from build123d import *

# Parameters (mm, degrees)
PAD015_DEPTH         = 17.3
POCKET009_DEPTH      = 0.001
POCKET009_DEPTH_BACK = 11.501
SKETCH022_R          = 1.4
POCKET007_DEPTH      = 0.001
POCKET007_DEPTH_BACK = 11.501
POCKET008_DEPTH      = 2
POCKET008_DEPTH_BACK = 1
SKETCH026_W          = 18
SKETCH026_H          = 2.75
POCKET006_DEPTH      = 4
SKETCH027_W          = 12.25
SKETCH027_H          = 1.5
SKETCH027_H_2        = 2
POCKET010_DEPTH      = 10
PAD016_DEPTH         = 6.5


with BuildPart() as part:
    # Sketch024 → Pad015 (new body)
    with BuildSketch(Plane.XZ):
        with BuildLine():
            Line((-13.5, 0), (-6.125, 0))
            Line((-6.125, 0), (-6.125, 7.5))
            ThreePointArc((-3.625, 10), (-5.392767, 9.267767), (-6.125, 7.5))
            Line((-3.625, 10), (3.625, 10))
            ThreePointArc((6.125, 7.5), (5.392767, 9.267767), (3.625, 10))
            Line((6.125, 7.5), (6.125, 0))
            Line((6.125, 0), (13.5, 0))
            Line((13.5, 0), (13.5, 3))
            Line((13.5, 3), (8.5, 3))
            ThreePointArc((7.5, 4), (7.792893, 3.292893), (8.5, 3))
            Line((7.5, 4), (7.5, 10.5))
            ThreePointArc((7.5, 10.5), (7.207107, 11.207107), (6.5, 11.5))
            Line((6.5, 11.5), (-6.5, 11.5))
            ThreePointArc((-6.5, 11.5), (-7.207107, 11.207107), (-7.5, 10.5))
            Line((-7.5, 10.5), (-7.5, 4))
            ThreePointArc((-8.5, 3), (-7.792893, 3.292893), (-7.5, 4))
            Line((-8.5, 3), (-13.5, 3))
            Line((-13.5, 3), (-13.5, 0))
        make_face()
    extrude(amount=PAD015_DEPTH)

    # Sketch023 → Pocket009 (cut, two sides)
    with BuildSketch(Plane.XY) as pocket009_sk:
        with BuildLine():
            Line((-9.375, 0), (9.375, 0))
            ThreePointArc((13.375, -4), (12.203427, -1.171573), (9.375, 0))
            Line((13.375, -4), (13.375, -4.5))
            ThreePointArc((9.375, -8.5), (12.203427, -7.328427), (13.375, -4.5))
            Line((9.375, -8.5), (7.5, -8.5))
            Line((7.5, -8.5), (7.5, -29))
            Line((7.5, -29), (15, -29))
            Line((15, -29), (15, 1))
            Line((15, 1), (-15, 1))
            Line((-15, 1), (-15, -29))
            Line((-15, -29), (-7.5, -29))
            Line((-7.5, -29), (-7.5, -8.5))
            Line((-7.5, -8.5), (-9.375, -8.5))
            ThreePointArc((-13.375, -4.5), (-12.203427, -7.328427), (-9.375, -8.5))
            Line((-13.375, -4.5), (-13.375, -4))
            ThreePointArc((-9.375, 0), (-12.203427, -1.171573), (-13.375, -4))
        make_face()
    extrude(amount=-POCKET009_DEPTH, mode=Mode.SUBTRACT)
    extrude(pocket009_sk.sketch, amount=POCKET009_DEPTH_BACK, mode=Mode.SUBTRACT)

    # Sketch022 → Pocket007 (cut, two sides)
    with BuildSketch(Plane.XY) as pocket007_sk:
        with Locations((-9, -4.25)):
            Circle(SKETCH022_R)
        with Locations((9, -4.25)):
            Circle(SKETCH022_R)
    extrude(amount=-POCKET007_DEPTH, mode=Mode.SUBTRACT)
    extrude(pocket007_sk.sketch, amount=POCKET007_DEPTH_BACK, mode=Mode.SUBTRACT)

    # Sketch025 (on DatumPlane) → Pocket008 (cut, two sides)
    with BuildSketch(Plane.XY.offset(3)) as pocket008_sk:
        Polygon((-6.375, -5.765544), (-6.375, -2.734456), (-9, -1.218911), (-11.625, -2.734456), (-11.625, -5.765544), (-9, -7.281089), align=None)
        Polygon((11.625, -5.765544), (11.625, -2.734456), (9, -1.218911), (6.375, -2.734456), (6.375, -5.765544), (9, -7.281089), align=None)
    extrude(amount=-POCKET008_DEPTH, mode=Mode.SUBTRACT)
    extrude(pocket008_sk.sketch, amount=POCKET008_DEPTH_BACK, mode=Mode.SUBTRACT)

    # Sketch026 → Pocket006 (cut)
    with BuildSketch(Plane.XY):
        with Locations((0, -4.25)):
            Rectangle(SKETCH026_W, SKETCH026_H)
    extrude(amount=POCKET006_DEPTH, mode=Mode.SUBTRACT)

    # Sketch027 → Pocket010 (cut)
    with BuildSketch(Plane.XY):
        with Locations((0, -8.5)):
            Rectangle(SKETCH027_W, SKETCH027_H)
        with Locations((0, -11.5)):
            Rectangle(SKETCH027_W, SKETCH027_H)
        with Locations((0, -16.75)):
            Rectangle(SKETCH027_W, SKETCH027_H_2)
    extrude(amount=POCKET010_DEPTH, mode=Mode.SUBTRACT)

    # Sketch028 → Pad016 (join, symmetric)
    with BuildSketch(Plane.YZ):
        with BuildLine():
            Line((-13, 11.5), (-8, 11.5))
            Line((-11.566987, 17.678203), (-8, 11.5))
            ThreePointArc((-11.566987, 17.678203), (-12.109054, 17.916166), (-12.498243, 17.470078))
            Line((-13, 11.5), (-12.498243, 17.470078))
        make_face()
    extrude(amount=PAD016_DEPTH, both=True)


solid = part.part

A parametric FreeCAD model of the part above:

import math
import FreeCAD as App
import Part
import Sketcher

V = App.Vector
Q = App.Units.Quantity


def add_polygon(sketch, points):
    """Adds a closed chain of lines whose ends are joined by coincident constraints."""
    first, n = sketch.GeometryCount, len(points)
    for a, b in zip(points, points[1:] + points[:1]):
        sketch.addGeometry(Part.LineSegment(App.Vector(*a, 0), App.Vector(*b, 0)), False)
    for i in range(n):
        sketch.addConstraint(Sketcher.Constraint("Coincident", first + i, 2, first + (i + 1) % n, 1))

doc = App.newDocument("Part")
params = doc.addObject("Spreadsheet::Sheet", "Params")
for row, (alias, value) in enumerate([
    ("sketch1_radius", "0.999999 mm"),
    ("sketch1_radius2", "2.5 mm"),
    ("sketch1_width", "5 mm"),
    ("sketch1_width2", "13 mm"),
    ("sketch1_height", "3 mm"),
    ("pad1_length", "17.3 mm"),
    ("sketch2_radius", "4 mm"),
    ("sketch2_width", "30 mm"),
    ("sketch2_width2", "7.5 mm"),
    ("sketch2_height", "0.5 mm"),
    ("sketch2_height2", "20.5 mm"),
    ("sketch3_diameter", "2.8 mm"),
    ("pocket3_length", "2 mm"),
    ("pocket3_length2", "1 mm"),
    ("sketch5_width", "18 mm"),
    ("sketch5_height", "2.75 mm"),
    ("pocket4_length", "4 mm"),
    ("sketch6_height", "2 mm"),
    ("sketch6_height2", "1.5 mm"),
    ("sketch6_width", "12.25 mm"),
    ("pocket5_length", "10 mm"),
    ("sketch7_radius", "0.5 mm"),
    ("sketch7_width", "5 mm"),
    ("pad2_length", "13 mm"),
], start=1):
    params.set(f"A{row}", alias)
    params.set(f"B{row}", "=" + value)
    params.setAlias(f"B{row}", alias)

body = doc.addObject("PartDesign::Body", "Body")

# Sketch on XZ plane
sketch1 = doc.addObject("Sketcher::SketchObject", "Sketch")
body.addObject(sketch1)
sketch1.AttachmentSupport = (doc.XZ_Plane, [""])
sketch1.MapMode = "FlatFace"
sketch1.addGeometry([
    Part.LineSegment(V(-13.5, 0, 0), V(-6.125, 0, 0)),  # 0
    Part.LineSegment(V(-6.125, 0, 0), V(-6.125, 7.5, 0)),  # 1
    Part.ArcOfCircle(Part.Circle(V(-3.625, 7.5, 0), V(0, 0, 1), 2.5), math.radians(89.999996), math.radians(180.000004)),  # 2
    Part.LineSegment(V(-3.625, 10, 0), V(3.625, 10, 0)),  # 3
    Part.ArcOfCircle(Part.Circle(V(3.625, 7.5, 0), V(0, 0, 1), 2.5), math.radians(-0.000004), math.radians(90.000004)),  # 4
    Part.LineSegment(V(6.125, 7.5, 0), V(6.125, 0, 0)),  # 5
    Part.LineSegment(V(6.125, 0, 0), V(13.5, 0, 0)),  # 6
    Part.LineSegment(V(13.5, 0, 0), V(13.5, 3, 0)),  # 7
    Part.LineSegment(V(13.5, 3, 0), V(8.5, 3, 0)),  # 8
    Part.ArcOfCircle(Part.Circle(V(8.499999, 3.999999, 0), V(0, 0, 1), 0.999999), math.radians(179.999957), math.radians(270.000043)),  # 9
    Part.LineSegment(V(7.5, 4, 0), V(7.5, 10.5, 0)),  # 10
    Part.ArcOfCircle(Part.Circle(V(6.500001, 10.500001, 0), V(0, 0, 1), 0.999999), math.radians(-0.000043), math.radians(90.000043)),  # 11
    Part.LineSegment(V(6.5, 11.5, 0), V(-6.5, 11.5, 0)),  # 12
    Part.ArcOfCircle(Part.Circle(V(-6.500001, 10.500001, 0), V(0, 0, 1), 0.999999), math.radians(89.999957), math.radians(180.000043)),  # 13
    Part.LineSegment(V(-7.5, 10.5, 0), V(-7.5, 4, 0)),  # 14
    Part.ArcOfCircle(Part.Circle(V(-8.499999, 3.999999, 0), V(0, 0, 1), 0.999999), math.radians(-90.000043), math.radians(0.000043)),  # 15
    Part.LineSegment(V(-8.5, 3, 0), V(-13.5, 3, 0)),  # 16
    Part.LineSegment(V(-13.5, 3, 0), V(-13.5, 0, 0)),  # 17
], False)
sketch1.addConstraint([
    Sketcher.Constraint("Coincident", 0, 2, 1, 1),
    Sketcher.Constraint("Tangent", 1, 2, 2, 2),
    Sketcher.Constraint("Tangent", 2, 1, 3, 1),
    Sketcher.Constraint("Tangent", 3, 2, 4, 2),
    Sketcher.Constraint("Tangent", 4, 1, 5, 1),
    Sketcher.Constraint("Coincident", 5, 2, 6, 1),
    Sketcher.Constraint("Coincident", 6, 2, 7, 1),
    Sketcher.Constraint("Coincident", 7, 2, 8, 1),
    Sketcher.Constraint("Tangent", 8, 2, 9, 2),
    Sketcher.Constraint("Tangent", 9, 1, 10, 1),
    Sketcher.Constraint("Tangent", 10, 2, 11, 1),
    Sketcher.Constraint("Tangent", 11, 2, 12, 1),
    Sketcher.Constraint("Tangent", 12, 2, 13, 1),
    Sketcher.Constraint("Tangent", 13, 2, 14, 1),
    Sketcher.Constraint("Tangent", 14, 2, 15, 2),
    Sketcher.Constraint("Tangent", 15, 1, 16, 1),
    Sketcher.Constraint("Coincident", 16, 2, 17, 1),
    Sketcher.Constraint("Coincident", 17, 2, 0, 1),
    Sketcher.Constraint("Horizontal", 0),
    Sketcher.Constraint("Vertical", 1),
    Sketcher.Constraint("Horizontal", 3),
    Sketcher.Constraint("Vertical", 5),
    Sketcher.Constraint("Horizontal", 6),
    Sketcher.Constraint("Vertical", 7),
    Sketcher.Constraint("Horizontal", 8),
    Sketcher.Constraint("Vertical", 10),
    Sketcher.Constraint("Horizontal", 12),
    Sketcher.Constraint("Vertical", 14),
    Sketcher.Constraint("Horizontal", 16),
    Sketcher.Constraint("Vertical", 17),
    Sketcher.Constraint("Equal", 2, 4),
    Sketcher.Constraint("Equal", 9, 11),
    Sketcher.Constraint("Equal", 11, 13),
    Sketcher.Constraint("Equal", 13, 15),
    Sketcher.Constraint("Symmetric", 0, 2, 5, 2, -1, 1),
    Sketcher.Constraint("Symmetric", 9, 3, 15, 3, -2),
    Sketcher.Constraint("Symmetric", 6, 2, 17, 2, -2),
    Sketcher.Constraint("Radius", 9, Q("0.999999 mm")),
    Sketcher.Constraint("Radius", 2, Q("2.5 mm")),
    Sketcher.Constraint("DistanceX", 8, 2, 8, 1, Q("5 mm")),
    Sketcher.Constraint("DistanceX", 12, 2, 12, 1, Q("13 mm")),
    Sketcher.Constraint("DistanceY", 7, 1, 7, 2, Q("3 mm")),
    Sketcher.Constraint("DistanceY", 1, 1, 1, 2, Q("7.5 mm")),
    Sketcher.Constraint("DistanceY", 10, 1, 10, 2, Q("6.5 mm")),
    Sketcher.Constraint("DistanceX", 3, 1, 3, 2, Q("7.25 mm")),
])
sketch1.setExpression("Constraints[37]", "Params.sketch1_radius")
sketch1.setExpression("Constraints[38]", "Params.sketch1_radius2")
sketch1.setExpression("Constraints[39]", "Params.sketch1_width")
sketch1.setExpression("Constraints[40]", "Params.sketch1_width2")
sketch1.setExpression("Constraints[41]", "Params.sketch1_height")
pad1 = doc.addObject("PartDesign::Pad", "Pad")
body.addObject(pad1)
pad1.Profile = sketch1
pad1.setExpression("Length", "Params.pad1_length")

# Sketch on XY plane
sketch2 = doc.addObject("Sketcher::SketchObject", "Sketch001")
body.addObject(sketch2)
sketch2.AttachmentSupport = (doc.XY_Plane, [""])
sketch2.MapMode = "FlatFace"
sketch2.addGeometry([
    Part.LineSegment(V(-9.375, 0, 0), V(9.375, 0, 0)),  # 0
    Part.ArcOfCircle(Part.Circle(V(9.375, -4, 0), V(0, 0, 1), 4), math.radians(0.000006), math.radians(89.999994)),  # 1
    Part.LineSegment(V(13.375, -4, 0), V(13.375, -4.5, 0)),  # 2
    Part.ArcOfCircle(Part.Circle(V(9.375, -4.5, 0), V(0, 0, 1), 4), math.radians(-89.999994), math.radians(-0.000006)),  # 3
    Part.LineSegment(V(9.375, -8.5, 0), V(7.5, -8.5, 0)),  # 4
    Part.LineSegment(V(7.5, -8.5, 0), V(7.5, -29, 0)),  # 5
    Part.LineSegment(V(7.5, -29, 0), V(15, -29, 0)),  # 6
    Part.LineSegment(V(15, -29, 0), V(15, 1, 0)),  # 7
    Part.LineSegment(V(15, 1, 0), V(-15, 1, 0)),  # 8
    Part.LineSegment(V(-15, 1, 0), V(-15, -29, 0)),  # 9
    Part.LineSegment(V(-15, -29, 0), V(-7.5, -29, 0)),  # 10
    Part.LineSegment(V(-7.5, -29, 0), V(-7.5, -8.5, 0)),  # 11
    Part.LineSegment(V(-7.5, -8.5, 0), V(-9.375, -8.5, 0)),  # 12
    Part.ArcOfCircle(Part.Circle(V(-9.375, -4.5, 0), V(0, 0, 1), 4), math.radians(-179.999994), math.radians(-90.000006)),  # 13
    Part.LineSegment(V(-13.375, -4.5, 0), V(-13.375, -4, 0)),  # 14
    Part.ArcOfCircle(Part.Circle(V(-9.375, -4, 0), V(0, 0, 1), 4), math.radians(90.000006), math.radians(179.999994)),  # 15
], False)
sketch2.addConstraint([
    Sketcher.Constraint("Tangent", 0, 2, 1, 2),
    Sketcher.Constraint("Tangent", 1, 1, 2, 1),
    Sketcher.Constraint("Tangent", 2, 2, 3, 2),
    Sketcher.Constraint("Tangent", 3, 1, 4, 1),
    Sketcher.Constraint("Coincident", 4, 2, 5, 1),
    Sketcher.Constraint("Coincident", 5, 2, 6, 1),
    Sketcher.Constraint("Coincident", 6, 2, 7, 1),
    Sketcher.Constraint("Coincident", 7, 2, 8, 1),
    Sketcher.Constraint("Coincident", 8, 2, 9, 1),
    Sketcher.Constraint("Coincident", 9, 2, 10, 1),
    Sketcher.Constraint("Coincident", 10, 2, 11, 1),
    Sketcher.Constraint("Coincident", 11, 2, 12, 1),
    Sketcher.Constraint("Tangent", 12, 2, 13, 2),
    Sketcher.Constraint("Tangent", 13, 1, 14, 1),
    Sketcher.Constraint("Tangent", 14, 2, 15, 2),
    Sketcher.Constraint("Tangent", 15, 1, 0, 1),
    Sketcher.Constraint("Horizontal", 0),
    Sketcher.Constraint("Vertical", 2),
    Sketcher.Constraint("Horizontal", 4),
    Sketcher.Constraint("Vertical", 5),
    Sketcher.Constraint("Horizontal", 6),
    Sketcher.Constraint("Vertical", 7),
    Sketcher.Constraint("Horizontal", 8),
    Sketcher.Constraint("Vertical", 9),
    Sketcher.Constraint("Horizontal", 10),
    Sketcher.Constraint("Vertical", 11),
    Sketcher.Constraint("Horizontal", 12),
    Sketcher.Constraint("Vertical", 14),
    Sketcher.Constraint("Equal", 1, 3),
    Sketcher.Constraint("Equal", 3, 13),
    Sketcher.Constraint("Equal", 13, 15),
    Sketcher.Constraint("Symmetric", 0, 2, 15, 1, -1, 1),
    Sketcher.Constraint("Symmetric", 6, 2, 9, 2, -2),
    Sketcher.Constraint("Symmetric", 4, 2, 11, 2, -2),
    Sketcher.Constraint("Equal", 8, 7),
    Sketcher.Constraint("Radius", 1, Q("4 mm")),
    Sketcher.Constraint("DistanceX", 8, 2, 8, 1, Q("30 mm")),
    Sketcher.Constraint("DistanceX", 6, 1, 6, 2, Q("7.5 mm")),
    Sketcher.Constraint("DistanceY", 2, 2, 2, 1, Q("0.5 mm")),
    Sketcher.Constraint("DistanceY", 5, 2, 5, 1, Q("20.5 mm")),
    Sketcher.Constraint("DistanceX", 0, 1, 0, 2, Q("18.75 mm")),
])
sketch2.setExpression("Constraints[35]", "Params.sketch2_radius")
sketch2.setExpression("Constraints[36]", "Params.sketch2_width")
sketch2.setExpression("Constraints[37]", "Params.sketch2_width2")
sketch2.setExpression("Constraints[38]", "Params.sketch2_height")
sketch2.setExpression("Constraints[39]", "Params.sketch2_height2")
pocket1 = doc.addObject("PartDesign::Pocket", "Pocket")
body.addObject(pocket1)
pocket1.Profile = sketch2
pocket1.Type = "ThroughAll"
pocket1.Midplane = True

# Sketch on XY plane
sketch3 = doc.addObject("Sketcher::SketchObject", "Sketch002")
body.addObject(sketch3)
sketch3.AttachmentSupport = (doc.XY_Plane, [""])
sketch3.MapMode = "FlatFace"
sketch3.addGeometry([
    Part.Circle(V(-9, -4.25, 0), V(0, 0, 1), 1.4),
    Part.Circle(V(9, -4.25, 0), V(0, 0, 1), 1.4),
], False)
sketch3.addConstraint([
    Sketcher.Constraint("Equal", 0, 1),
    Sketcher.Constraint("Symmetric", 0, 3, 1, 3, -2),
    Sketcher.Constraint("Diameter", 0, Q("2.8 mm")),
    Sketcher.Constraint("DistanceX", 0, 3, -1, 1, Q("9 mm")),
    Sketcher.Constraint("DistanceY", 0, 3, -1, 1, Q("4.25 mm")),
])
sketch3.setExpression("Constraints[2]", "Params.sketch3_diameter")
pocket2 = doc.addObject("PartDesign::Pocket", "Pocket001")
body.addObject(pocket2)
pocket2.Profile = sketch3
pocket2.Type = "ThroughAll"
pocket2.Midplane = True

# Sketch on XY plane
sketch4 = doc.addObject("Sketcher::SketchObject", "Sketch003")
body.addObject(sketch4)
sketch4.AttachmentSupport = (doc.XY_Plane, [""])
sketch4.MapMode = "FlatFace"
sketch4.AttachmentOffset = App.Placement(V(0, 0, 3), App.Rotation())
add_polygon(sketch4, [(-6.375, -5.765544), (-6.375, -2.734456), (-9, -1.218911), (-11.625, -2.734456), (-11.625, -5.765544), (-9, -7.281089)])  # lines 0-5
add_polygon(sketch4, [(11.625, -5.765544), (11.625, -2.734456), (9, -1.218911), (6.375, -2.734456), (6.375, -5.765544), (9, -7.281089)])  # lines 6-11
sketch4.addConstraint([
    Sketcher.Constraint("Vertical", 0),
    Sketcher.Constraint("Vertical", 3),
    Sketcher.Constraint("Vertical", 6),
    Sketcher.Constraint("Vertical", 9),
    Sketcher.Constraint("Symmetric", 2, 2, 6, 2, -2),
    Sketcher.Constraint("Symmetric", 1, 2, 7, 2, -2),
    Sketcher.Constraint("Symmetric", 0, 2, 8, 2, -2),
    Sketcher.Constraint("Symmetric", 4, 2, 10, 2, -2),
    Sketcher.Constraint("Parallel", 1, 4),
    Sketcher.Constraint("Parallel", 2, 5),
    Sketcher.Constraint("Parallel", 4, 7),
    Sketcher.Constraint("Parallel", 7, 10),
    Sketcher.Constraint("Parallel", 8, 11),
    Sketcher.Constraint("Horizontal", 0, 2, 2, 2),
    Sketcher.Constraint("Horizontal", 3, 2, 5, 2),
    Sketcher.Constraint("Angle", 1, Q("149.999991 deg")),
    Sketcher.Constraint("DistanceX", 1, 2, -1, 1, Q("9 mm")),
    Sketcher.Constraint("DistanceX", 2, 2, 0, 2, Q("5.25 mm")),
    Sketcher.Constraint("DistanceY", 0, 1, 0, 2, Q("3.031088 mm")),
    Sketcher.Constraint("DistanceY", 1, 2, -1, 1, Q("1.218911 mm")),
])
pocket3 = doc.addObject("PartDesign::Pocket", "Pocket002")
body.addObject(pocket3)
pocket3.Profile = sketch4
pocket3.Type = "TwoLengths"
pocket3.setExpression("Length", "Params.pocket3_length")
pocket3.setExpression("Length2", "Params.pocket3_length2")

# Sketch on XY plane
sketch5 = doc.addObject("Sketcher::SketchObject", "Sketch004")
body.addObject(sketch5)
sketch5.AttachmentSupport = (doc.XY_Plane, [""])
sketch5.MapMode = "FlatFace"
add_polygon(sketch5, [(-9, -2.875), (-9, -5.625), (9, -5.625), (9, -2.875)])  # lines 0-3
sketch5.addConstraint([
    Sketcher.Constraint("Vertical", 0),
    Sketcher.Constraint("Horizontal", 1),
    Sketcher.Constraint("Vertical", 2),
    Sketcher.Constraint("Horizontal", 3),
    Sketcher.Constraint("DistanceX", 1, 1, 1, 2, Q("18 mm")),
    Sketcher.Constraint("DistanceX", 0, 2, -1, 1, Q("9 mm")),
    Sketcher.Constraint("DistanceY", 0, 2, 0, 1, Q("2.75 mm")),
    Sketcher.Constraint("DistanceY", 0, 2, -1, 1, Q("5.625 mm")),
])
sketch5.setExpression("Constraints[8]", "Params.sketch5_width")
sketch5.setExpression("Constraints[10]", "Params.sketch5_height")
pocket4 = doc.addObject("PartDesign::Pocket", "Pocket003")
body.addObject(pocket4)
pocket4.Profile = sketch5
pocket4.setExpression("Length", "Params.pocket4_length")
pocket4.Reversed = True

# Sketch on XY plane
sketch6 = doc.addObject("Sketcher::SketchObject", "Sketch005")
body.addObject(sketch6)
sketch6.AttachmentSupport = (doc.XY_Plane, [""])
sketch6.MapMode = "FlatFace"
add_polygon(sketch6, [(-6.125, -7.75), (-6.125, -9.25), (6.125, -9.25), (6.125, -7.75)])  # lines 0-3
add_polygon(sketch6, [(-6.125, -10.75), (-6.125, -12.25), (6.125, -12.25), (6.125, -10.75)])  # lines 4-7
add_polygon(sketch6, [(-6.125, -15.75), (-6.125, -17.75), (6.125, -17.75), (6.125, -15.75)])  # lines 8-11
sketch6.addConstraint([
    Sketcher.Constraint("Vertical", 0),
    Sketcher.Constraint("Horizontal", 1),
    Sketcher.Constraint("Vertical", 2),
    Sketcher.Constraint("Horizontal", 3),
    Sketcher.Constraint("Vertical", 4),
    Sketcher.Constraint("Horizontal", 5),
    Sketcher.Constraint("Vertical", 6),
    Sketcher.Constraint("Horizontal", 7),
    Sketcher.Constraint("Vertical", 8),
    Sketcher.Constraint("Horizontal", 9),
    Sketcher.Constraint("Vertical", 10),
    Sketcher.Constraint("Horizontal", 11),
    Sketcher.Constraint("Vertical", 3, 2, 4, 2),
    Sketcher.Constraint("Vertical", 2, 2, 5, 2),
    Sketcher.Constraint("Vertical", 7, 2, 8, 2),
    Sketcher.Constraint("Vertical", 6, 2, 9, 2),
    Sketcher.Constraint("Equal", 2, 4),
    Sketcher.Constraint("DistanceY", 8, 2, 8, 1, Q("2 mm")),
    Sketcher.Constraint("DistanceY", 0, 2, 0, 1, Q("1.5 mm")),
    Sketcher.Constraint("DistanceY", 4, 2, 0, 2, Q("3 mm")),
    Sketcher.Constraint("DistanceY", 8, 2, 7, 2, Q("7 mm")),
    Sketcher.Constraint("DistanceX", 1, 1, 1, 2, Q("12.25 mm")),
    Sketcher.Constraint("DistanceY", 0, 2, -1, 1, Q("9.25 mm")),
    Sketcher.Constraint("DistanceX", 0, 2, -1, 1, Q("6.125 mm")),
])
sketch6.setExpression("Constraints[29]", "Params.sketch6_height")
sketch6.setExpression("Constraints[30]", "Params.sketch6_height2")
sketch6.setExpression("Constraints[33]", "Params.sketch6_width")
pocket5 = doc.addObject("PartDesign::Pocket", "Pocket004")
body.addObject(pocket5)
pocket5.Profile = sketch6
pocket5.setExpression("Length", "Params.pocket5_length")
pocket5.Reversed = True

# Sketch on YZ plane
sketch7 = doc.addObject("Sketcher::SketchObject", "Sketch006")
body.addObject(sketch7)
sketch7.AttachmentSupport = (doc.YZ_Plane, [""])
sketch7.MapMode = "FlatFace"
sketch7.addGeometry([
    Part.LineSegment(V(-13, 11.5, 0), V(-8, 11.5, 0)),
    Part.LineSegment(V(-8, 11.5, 0), V(-11.566987, 17.678203, 0)),
    Part.ArcOfCircle(Part.Circle(V(-12, 17.428204, 0), V(0, 0, 1), 0.5), math.radians(29.99988), math.radians(175.195974)),
    Part.LineSegment(V(-12.498243, 17.470078, 0), V(-13, 11.5, 0)),
], False)
sketch7.addConstraint([
    Sketcher.Constraint("Coincident", 0, 2, 1, 1),
    Sketcher.Constraint("Coincident", 1, 2, 2, 1),
    Sketcher.Constraint("Coincident", 2, 2, 3, 1),
    Sketcher.Constraint("Coincident", 3, 2, 0, 1),
    Sketcher.Constraint("Horizontal", 0),
    Sketcher.Constraint("Radius", 2, Q("0.5 mm")),
    Sketcher.Constraint("DistanceX", 0, 1, 0, 2, Q("5 mm")),
    Sketcher.Constraint("Angle", 1, Q("119.999999 deg")),
    Sketcher.Constraint("DistanceX", 2, 3, -1, 1, Q("12 mm")),
    Sketcher.Constraint("DistanceX", 0, 2, -1, 1, Q("8 mm")),
    Sketcher.Constraint("DistanceY", -1, 1, 0, 2, Q("11.5 mm")),
    Sketcher.Constraint("DistanceY", 2, 3, 1, 2, Q("0.249999 mm")),
    Sketcher.Constraint("Distance", 3, Q("5.991126 mm")),
])
sketch7.setExpression("Constraints[5]", "Params.sketch7_radius")
sketch7.setExpression("Constraints[6]", "Params.sketch7_width")
pad2 = doc.addObject("PartDesign::Pad", "Pad001")
body.addObject(pad2)
pad2.Profile = sketch7
pad2.setExpression("Length", "Params.pad2_length")
pad2.Midplane = True

doc.recompute()
